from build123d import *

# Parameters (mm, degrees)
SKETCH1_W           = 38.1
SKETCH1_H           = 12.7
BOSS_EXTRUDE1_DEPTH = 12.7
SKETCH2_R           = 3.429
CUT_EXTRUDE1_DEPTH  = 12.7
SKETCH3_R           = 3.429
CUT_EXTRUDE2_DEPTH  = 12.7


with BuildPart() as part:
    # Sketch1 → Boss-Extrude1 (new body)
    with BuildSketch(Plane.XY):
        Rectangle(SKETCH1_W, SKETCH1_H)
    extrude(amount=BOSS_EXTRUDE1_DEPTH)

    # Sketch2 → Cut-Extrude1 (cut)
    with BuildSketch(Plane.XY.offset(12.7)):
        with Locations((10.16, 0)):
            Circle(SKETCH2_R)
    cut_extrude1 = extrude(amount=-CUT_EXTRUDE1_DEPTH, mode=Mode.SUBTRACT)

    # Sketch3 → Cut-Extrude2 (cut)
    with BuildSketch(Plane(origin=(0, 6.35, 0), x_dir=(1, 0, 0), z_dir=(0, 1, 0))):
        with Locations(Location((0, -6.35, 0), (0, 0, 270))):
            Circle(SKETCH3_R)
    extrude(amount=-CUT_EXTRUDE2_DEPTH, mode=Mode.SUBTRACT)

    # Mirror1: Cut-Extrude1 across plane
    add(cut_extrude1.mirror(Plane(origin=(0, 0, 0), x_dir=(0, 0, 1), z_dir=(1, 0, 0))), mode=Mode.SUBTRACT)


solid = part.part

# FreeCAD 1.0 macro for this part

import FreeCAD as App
import Part
import Sketcher

V = App.Vector
Q = App.Units.Quantity


def add_polygon(sketch, points):
    """Adds a closed chain of lines whose ends are joined by coincident constraints."""
    first, n = sketch.GeometryCount, len(points)
    for a, b in zip(points, points[1:] + points[:1]):
        sketch.addGeometry(Part.LineSegment(App.Vector(*a, 0), App.Vector(*b, 0)), False)
    for i in range(n):
        sketch.addConstraint(Sketcher.Constraint("Coincident", first + i, 2, first + (i + 1) % n, 1))

doc = App.newDocument("Part")
params = doc.addObject("Spreadsheet::Sheet", "Params")
for row, (alias, value) in enumerate([
    ("sketch1_width", "1.5 in"),
    ("sketch1_height", "0.5 in"),
    ("pad1_length", "0.5 in"),
    ("sketch2_diameter", "0.27 in"),
    ("pocket1_length", "0.5 in"),
    ("sketch3_diameter", "0.27 in"),
    ("pocket2_length", "0.5 in"),
], start=1):
    params.set(f"A{row}", alias)
    params.set(f"B{row}", "=" + value)
    params.setAlias(f"B{row}", alias)

body = doc.addObject("PartDesign::Body", "Body")

# Sketch on XY plane
sketch1 = body.newObject("Sketcher::SketchObject", "Sketch")
sketch1.AttachmentSupport = (doc.getObject("XY_Plane"), [""])
sketch1.MapMode = "FlatFace"
add_polygon(sketch1, [(-19, 6), (-19, -6), (19, -6), (19, 6)])  # lines 0-3
sketch1.addConstraint([
    Sketcher.Constraint("Vertical", 0),
    Sketcher.Constraint("Horizontal", 1),
    Sketcher.Constraint("Vertical", 2),
    Sketcher.Constraint("Horizontal", 3),
    Sketcher.Constraint("Symmetric", 0, 2, 2, 2, -1, 1),
    Sketcher.Constraint("DistanceX", 1, 1, 1, 2, Q("1.5 in")),
    Sketcher.Constraint("DistanceY", 0, 2, 0, 1, Q("0.5 in")),
])
sketch1.setExpression("Constraints[9]", "Params.sketch1_width")
sketch1.setExpression("Constraints[10]", "Params.sketch1_height")
pad1 = body.newObject("PartDesign::Pad", "Pad")
pad1.Profile = sketch1
pad1.setExpression("Length", "Params.pad1_length")

# Sketch on XY plane
sketch2 = body.newObject("Sketcher::SketchObject", "Sketch001")
sketch2.AttachmentSupport = (doc.getObject("XY_Plane"), [""])
sketch2.MapMode = "FlatFace"
sketch2.AttachmentOffset = App.Placement(V(0, 0, 0.5 * 25.4), App.Rotation())
sketch2.addGeometry(Part.Circle(V(10.2, 0, 0), V(0, 0, 1), 3.4), False)
sketch2.addConstraint([
    Sketcher.Constraint("PointOnObject", 0, 3, -1),
    Sketcher.Constraint("Diameter", 0, Q("0.27 in")),
    Sketcher.Constraint("DistanceX", -1, 1, 0, 3, Q("0.4 in")),
])
sketch2.setExpression("Constraints[1]", "Params.sketch2_diameter")
pocket1 = body.newObject("PartDesign::Pocket", "Pocket")
pocket1.Profile = sketch2
pocket1.setExpression("Length", "Params.pocket1_length")

# Sketch on XZ plane
sketch3 = body.newObject("Sketcher::SketchObject", "Sketch002")
sketch3.AttachmentSupport = (doc.getObject("XZ_Plane"), [""])
sketch3.MapMode = "FlatFace"
sketch3.AttachmentOffset = App.Placement(V(0, 0, -0.25 * 25.4), App.Rotation())
sketch3.addGeometry(Part.Circle(V(0, 6.3, 0), V(0, 0, 1), 3.4), False)
sketch3.addConstraint([
    Sketcher.Constraint("PointOnObject", 0, 3, -2),
    Sketcher.Constraint("Diameter", 0, Q("0.27 in")),
    Sketcher.Constraint("DistanceY", -1, 1, 0, 3, Q("0.25 in")),
])
sketch3.setExpression("Constraints[1]", "Params.sketch3_diameter")
pocket2 = body.newObject("PartDesign::Pocket", "Pocket001")
pocket2.Profile = sketch3
pocket2.setExpression("Length", "Params.pocket2_length")
pocket2.Reversed = True
doc.recompute()

mirrored = body.newObject("PartDesign::Mirrored", "Mirrored")
mirrored.Originals = [pocket1]
mirrored.MirrorPlane = (doc.getObject("YZ_Plane"), [""])
body.Tip = mirrored

doc.recompute()
